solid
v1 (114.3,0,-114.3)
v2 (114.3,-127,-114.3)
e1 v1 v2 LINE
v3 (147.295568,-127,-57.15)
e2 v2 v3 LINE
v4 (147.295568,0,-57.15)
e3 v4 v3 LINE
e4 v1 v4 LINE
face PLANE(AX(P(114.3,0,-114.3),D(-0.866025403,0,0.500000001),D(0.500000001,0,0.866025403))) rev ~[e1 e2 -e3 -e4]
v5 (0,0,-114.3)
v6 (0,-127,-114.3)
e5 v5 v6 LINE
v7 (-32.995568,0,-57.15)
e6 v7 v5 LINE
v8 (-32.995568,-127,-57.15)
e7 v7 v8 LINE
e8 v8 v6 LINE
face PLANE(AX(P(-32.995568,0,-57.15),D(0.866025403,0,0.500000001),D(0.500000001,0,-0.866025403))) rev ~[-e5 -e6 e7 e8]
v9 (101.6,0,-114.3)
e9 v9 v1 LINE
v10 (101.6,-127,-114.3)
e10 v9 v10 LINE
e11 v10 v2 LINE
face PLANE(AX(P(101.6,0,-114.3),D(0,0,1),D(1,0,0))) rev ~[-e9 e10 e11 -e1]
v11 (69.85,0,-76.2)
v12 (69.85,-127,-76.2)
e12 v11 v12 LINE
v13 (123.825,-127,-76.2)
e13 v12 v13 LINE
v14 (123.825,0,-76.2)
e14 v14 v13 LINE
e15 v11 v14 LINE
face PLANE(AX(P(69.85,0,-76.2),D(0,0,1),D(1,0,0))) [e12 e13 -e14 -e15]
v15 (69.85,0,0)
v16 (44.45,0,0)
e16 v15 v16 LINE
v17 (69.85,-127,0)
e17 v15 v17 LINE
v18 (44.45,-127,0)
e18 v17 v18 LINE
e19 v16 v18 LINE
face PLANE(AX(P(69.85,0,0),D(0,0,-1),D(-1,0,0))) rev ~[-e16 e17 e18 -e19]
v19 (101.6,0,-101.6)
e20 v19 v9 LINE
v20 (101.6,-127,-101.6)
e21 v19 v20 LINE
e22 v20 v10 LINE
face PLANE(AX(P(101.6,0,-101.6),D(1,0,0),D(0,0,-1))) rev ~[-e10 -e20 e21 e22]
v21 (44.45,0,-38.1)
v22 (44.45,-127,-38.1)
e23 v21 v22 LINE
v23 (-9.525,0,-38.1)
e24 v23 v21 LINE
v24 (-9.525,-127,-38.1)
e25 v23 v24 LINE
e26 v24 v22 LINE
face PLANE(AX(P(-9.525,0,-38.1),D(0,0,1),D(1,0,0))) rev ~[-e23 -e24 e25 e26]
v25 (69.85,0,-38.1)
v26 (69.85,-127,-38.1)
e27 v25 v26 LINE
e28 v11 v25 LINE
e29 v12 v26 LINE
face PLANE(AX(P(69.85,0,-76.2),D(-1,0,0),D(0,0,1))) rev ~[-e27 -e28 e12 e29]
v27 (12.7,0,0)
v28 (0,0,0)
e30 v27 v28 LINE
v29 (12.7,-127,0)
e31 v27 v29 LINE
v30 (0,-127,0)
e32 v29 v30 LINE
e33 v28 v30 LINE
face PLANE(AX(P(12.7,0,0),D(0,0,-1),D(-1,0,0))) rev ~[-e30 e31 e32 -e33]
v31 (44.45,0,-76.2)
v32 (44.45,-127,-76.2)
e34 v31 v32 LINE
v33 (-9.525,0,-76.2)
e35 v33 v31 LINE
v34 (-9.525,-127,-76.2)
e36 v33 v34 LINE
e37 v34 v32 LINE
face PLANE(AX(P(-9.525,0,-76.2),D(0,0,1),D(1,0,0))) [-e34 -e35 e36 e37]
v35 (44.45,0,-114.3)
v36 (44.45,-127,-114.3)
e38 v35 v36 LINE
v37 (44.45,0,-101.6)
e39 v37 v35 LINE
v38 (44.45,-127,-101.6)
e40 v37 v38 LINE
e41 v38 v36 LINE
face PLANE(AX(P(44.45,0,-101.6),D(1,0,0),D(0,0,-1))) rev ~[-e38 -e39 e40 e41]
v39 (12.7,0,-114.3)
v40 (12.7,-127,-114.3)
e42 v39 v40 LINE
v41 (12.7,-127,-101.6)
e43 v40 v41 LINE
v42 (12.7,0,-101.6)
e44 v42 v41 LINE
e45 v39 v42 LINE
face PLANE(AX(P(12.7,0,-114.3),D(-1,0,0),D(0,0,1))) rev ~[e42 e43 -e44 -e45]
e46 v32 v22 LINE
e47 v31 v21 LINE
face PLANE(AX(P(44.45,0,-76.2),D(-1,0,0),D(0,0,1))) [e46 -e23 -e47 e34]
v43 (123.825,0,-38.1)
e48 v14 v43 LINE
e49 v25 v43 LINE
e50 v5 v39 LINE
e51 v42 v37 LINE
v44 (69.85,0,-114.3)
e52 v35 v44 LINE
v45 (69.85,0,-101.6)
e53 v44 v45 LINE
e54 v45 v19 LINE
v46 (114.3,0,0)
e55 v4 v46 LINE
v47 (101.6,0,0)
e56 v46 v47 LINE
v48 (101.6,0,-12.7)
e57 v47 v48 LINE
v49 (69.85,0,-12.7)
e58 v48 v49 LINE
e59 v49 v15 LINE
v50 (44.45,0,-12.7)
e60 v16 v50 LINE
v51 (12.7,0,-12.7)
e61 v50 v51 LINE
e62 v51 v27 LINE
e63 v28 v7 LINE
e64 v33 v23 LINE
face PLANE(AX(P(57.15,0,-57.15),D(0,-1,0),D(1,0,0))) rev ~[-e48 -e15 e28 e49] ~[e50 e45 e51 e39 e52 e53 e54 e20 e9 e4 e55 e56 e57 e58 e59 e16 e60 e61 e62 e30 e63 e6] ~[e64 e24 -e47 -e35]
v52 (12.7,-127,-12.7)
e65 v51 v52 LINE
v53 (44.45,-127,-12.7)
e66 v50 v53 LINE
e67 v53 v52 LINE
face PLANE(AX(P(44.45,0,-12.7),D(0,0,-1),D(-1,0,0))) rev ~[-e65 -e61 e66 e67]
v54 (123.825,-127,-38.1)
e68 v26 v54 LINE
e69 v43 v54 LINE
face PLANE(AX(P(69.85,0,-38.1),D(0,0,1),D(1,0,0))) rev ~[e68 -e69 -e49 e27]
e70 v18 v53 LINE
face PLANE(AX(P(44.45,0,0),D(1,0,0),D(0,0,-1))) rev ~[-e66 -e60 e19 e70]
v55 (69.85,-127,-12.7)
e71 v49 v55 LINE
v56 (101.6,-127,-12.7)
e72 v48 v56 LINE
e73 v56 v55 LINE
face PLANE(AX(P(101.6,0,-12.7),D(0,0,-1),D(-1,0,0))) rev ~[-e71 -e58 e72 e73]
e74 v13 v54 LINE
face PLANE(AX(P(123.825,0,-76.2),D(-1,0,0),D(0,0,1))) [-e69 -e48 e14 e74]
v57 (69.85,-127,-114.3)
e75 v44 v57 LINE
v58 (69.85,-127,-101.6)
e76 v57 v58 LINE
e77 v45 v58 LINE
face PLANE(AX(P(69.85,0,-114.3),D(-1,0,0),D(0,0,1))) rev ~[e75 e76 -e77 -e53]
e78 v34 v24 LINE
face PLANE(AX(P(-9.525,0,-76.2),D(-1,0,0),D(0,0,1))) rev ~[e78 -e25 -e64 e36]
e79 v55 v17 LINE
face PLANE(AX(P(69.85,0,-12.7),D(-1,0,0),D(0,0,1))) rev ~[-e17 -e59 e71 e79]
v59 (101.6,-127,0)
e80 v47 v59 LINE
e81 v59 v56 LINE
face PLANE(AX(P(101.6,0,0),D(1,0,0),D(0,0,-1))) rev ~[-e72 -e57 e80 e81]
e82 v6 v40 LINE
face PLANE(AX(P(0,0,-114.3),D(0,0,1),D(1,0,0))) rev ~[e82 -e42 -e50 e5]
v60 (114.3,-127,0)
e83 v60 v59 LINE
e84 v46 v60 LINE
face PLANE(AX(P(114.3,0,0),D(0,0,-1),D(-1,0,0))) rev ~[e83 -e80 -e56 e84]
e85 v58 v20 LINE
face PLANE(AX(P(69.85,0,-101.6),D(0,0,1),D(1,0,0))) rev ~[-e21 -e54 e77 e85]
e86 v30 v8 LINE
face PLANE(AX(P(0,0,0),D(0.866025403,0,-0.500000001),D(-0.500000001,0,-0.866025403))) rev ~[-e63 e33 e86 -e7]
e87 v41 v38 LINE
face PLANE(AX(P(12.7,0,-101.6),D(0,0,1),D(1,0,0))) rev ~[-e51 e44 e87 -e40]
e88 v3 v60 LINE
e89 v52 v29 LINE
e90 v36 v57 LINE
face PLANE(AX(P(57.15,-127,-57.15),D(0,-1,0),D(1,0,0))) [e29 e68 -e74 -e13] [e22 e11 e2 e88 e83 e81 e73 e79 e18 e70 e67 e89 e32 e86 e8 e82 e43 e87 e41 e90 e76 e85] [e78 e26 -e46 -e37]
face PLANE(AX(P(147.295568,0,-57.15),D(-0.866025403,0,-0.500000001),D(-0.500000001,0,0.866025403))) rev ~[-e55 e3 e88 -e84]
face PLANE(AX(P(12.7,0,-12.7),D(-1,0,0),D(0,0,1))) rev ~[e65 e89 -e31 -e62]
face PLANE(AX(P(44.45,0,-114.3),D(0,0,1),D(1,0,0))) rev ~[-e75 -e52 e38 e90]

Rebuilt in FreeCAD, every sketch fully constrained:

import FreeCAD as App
import Part
import Sketcher
Q = App.Units.Quantity


def add_polygon(sketch, points):
    """Adds a closed chain of lines whose ends are joined by coincident constraints."""
    first, n = sketch.GeometryCount, len(points)
    for a, b in zip(points, points[1:] + points[:1]):
        sketch.addGeometry(Part.LineSegment(App.Vector(*a, 0), App.Vector(*b, 0)), False)
    for i in range(n):
        sketch.addConstraint(Sketcher.Constraint("Coincident", first + i, 2, first + (i + 1) % n, 1))

doc = App.newDocument("Part")
params = doc.addObject("Spreadsheet::Sheet", "Params")
for row, (alias, value) in enumerate([
    ("sketch1_width", "1 in"),
    ("sketch1_width2", "0.5 in"),
    ("sketch1_height", "1.5 in"),
    ("sketch1_width3", "2.125 in"),
    ("pad1_length", "5 in"),
], start=1):
    params.set(f"A{row}", alias)
    params.set(f"B{row}", "=" + value)
    params.setAlias(f"B{row}", alias)

body = doc.addObject("PartDesign::Body", "Body")

sketch1 = body.newObject("Sketcher::SketchObject", "Sketch")
sketch1.AttachmentSupport = (doc.getObject("XZ_Plane"), [""])
sketch1.MapMode = "FlatFace"
add_polygon(sketch1, [(13, 0), (0, 0), (-33, -57), (0, -114), (13, -114), (13, -102), (44, -102), (44, -114), (70, -114), (70, -102), (102, -102), (102, -114), (114, -114), (147, -57), (114, 0), (102, 0), (102, -13), (70, -13), (70, 0), (44, 0), (44, -13), (13, -13)])
add_polygon(sketch1, [(44, -76), (-10, -76), (-10, -38), (44, -38)])
add_polygon(sketch1, [(124, -76), (70, -76), (70, -38), (124, -38)])
sketch1.addConstraint(Sketcher.Constraint("Horizontal", 0))
sketch1.addConstraint(Sketcher.Constraint("Horizontal", 3))
sketch1.addConstraint(Sketcher.Constraint("Vertical", 4))
sketch1.addConstraint(Sketcher.Constraint("Horizontal", 5))
sketch1.addConstraint(Sketcher.Constraint("Vertical", 6))
sketch1.addConstraint(Sketcher.Constraint("Horizontal", 7))
sketch1.addConstraint(Sketcher.Constraint("Vertical", 8))
sketch1.addConstraint(Sketcher.Constraint("Horizontal", 9))
sketch1.addConstraint(Sketcher.Constraint("Vertical", 10))
sketch1.addConstraint(Sketcher.Constraint("Horizontal", 11))
sketch1.addConstraint(Sketcher.Constraint("Horizontal", 14))
sketch1.addConstraint(Sketcher.Constraint("Vertical", 15))
sketch1.addConstraint(Sketcher.Constraint("Horizontal", 16))
sketch1.addConstraint(Sketcher.Constraint("Vertical", 17))
sketch1.addConstraint(Sketcher.Constraint("Horizontal", 18))
sketch1.addConstraint(Sketcher.Constraint("Vertical", 19))
sketch1.addConstraint(Sketcher.Constraint("Horizontal", 20))
sketch1.addConstraint(Sketcher.Constraint("Vertical", 21))
sketch1.addConstraint(Sketcher.Constraint("Horizontal", 22))
sketch1.addConstraint(Sketcher.Constraint("Vertical", 23))
sketch1.addConstraint(Sketcher.Constraint("Horizontal", 24))
sketch1.addConstraint(Sketcher.Constraint("Vertical", 25))
sketch1.addConstraint(Sketcher.Constraint("Horizontal", 26))
sketch1.addConstraint(Sketcher.Constraint("Vertical", 27))
sketch1.addConstraint(Sketcher.Constraint("Horizontal", 28))
sketch1.addConstraint(Sketcher.Constraint("Vertical", 29))
sketch1.addConstraint(Sketcher.Constraint("Coincident", 0, 2, -1, 1))
sketch1.addConstraint(Sketcher.Constraint("PointOnObject", 2, 2, -2))
sketch1.addConstraint(Sketcher.Constraint("PointOnObject", 13, 2, -1))
sketch1.addConstraint(Sketcher.Constraint("PointOnObject", 17, 2, -1))
sketch1.addConstraint(Sketcher.Constraint("Parallel", 1, 12))
sketch1.addConstraint(Sketcher.Constraint("Parallel", 2, 13))
sketch1.addConstraint(Sketcher.Constraint("Horizontal", 3, 2, 6, 2))
sketch1.addConstraint(Sketcher.Constraint("Horizontal", 5, 2, 8, 2))
sketch1.addConstraint(Sketcher.Constraint("Horizontal", 7, 2, 10, 2))
sketch1.addConstraint(Sketcher.Constraint("Horizontal", 1, 2, 12, 2))
sketch1.addConstraint(Sketcher.Constraint("Horizontal", 16, 2, 19, 2))
sketch1.addConstraint(Sketcher.Constraint("Horizontal", 25, 2, 26, 2))
sketch1.addConstraint(Sketcher.Constraint("Horizontal", 24, 2, 27, 2))
sketch1.addConstraint(Sketcher.Constraint("Vertical", 11, 2, 13, 2))
sketch1.addConstraint(Sketcher.Constraint("Vertical", 10, 2, 14, 2))
sketch1.addConstraint(Sketcher.Constraint("Vertical", 8, 2, 16, 2))
sketch1.addConstraint(Sketcher.Constraint("Vertical", 6, 2, 18, 2))
sketch1.addConstraint(Sketcher.Constraint("Vertical", 4, 2, 20, 2))
sketch1.addConstraint(Sketcher.Constraint("Vertical", 19, 2, 24, 2))
sketch1.addConstraint(Sketcher.Constraint("Vertical", 17, 2, 26, 2))
sketch1.addConstraint(Sketcher.Constraint("Equal", 5, 9))
sketch1.addConstraint(Sketcher.Constraint("Equal", 3, 11))
sketch1.addConstraint(Sketcher.Constraint("Equal", 24, 26))
sketch1.addConstraint(Sketcher.Constraint("Equal", 14, 4))
sketch1.addConstraint(Sketcher.Constraint("Equal", 10, 15))
sketch1.addConstraint(Sketcher.Constraint("DistanceX", 7, 1, 7, 2, Q("1 in")))
sketch1.addConstraint(Sketcher.Constraint("DistanceX", 0, 2, 0, 1, Q("0.5 in")))
sketch1.addConstraint(Sketcher.Constraint("DistanceY", 23, 1, 23, 2, Q("1.5 in")))
sketch1.addConstraint(Sketcher.Constraint("DistanceY", 4, 2, -1, 1, Q("4 in")))
sketch1.addConstraint(Sketcher.Constraint("DistanceX", -1, 1, 9, 2, Q("4 in")))
sketch1.addConstraint(Sketcher.Constraint("DistanceY", 22, 2, -1, 1, Q("3 in")))
sketch1.addConstraint(Sketcher.Constraint("Angle", 1, Q("-120 deg")))
sketch1.addConstraint(Sketcher.Constraint("DistanceX", 22, 2, 22, 1, Q("2.125 in")))
sketch1.setExpression("Constraints[81]", "Params.sketch1_width")
sketch1.setExpression("Constraints[82]", "Params.sketch1_width2")
sketch1.setExpression("Constraints[83]", "Params.sketch1_height")
sketch1.setExpression("Constraints[88]", "Params.sketch1_width3")
pad1 = body.newObject("PartDesign::Pad", "Pad")
pad1.Profile = sketch1
pad1.setExpression("Length", "Params.pad1_length")

doc.recompute()
